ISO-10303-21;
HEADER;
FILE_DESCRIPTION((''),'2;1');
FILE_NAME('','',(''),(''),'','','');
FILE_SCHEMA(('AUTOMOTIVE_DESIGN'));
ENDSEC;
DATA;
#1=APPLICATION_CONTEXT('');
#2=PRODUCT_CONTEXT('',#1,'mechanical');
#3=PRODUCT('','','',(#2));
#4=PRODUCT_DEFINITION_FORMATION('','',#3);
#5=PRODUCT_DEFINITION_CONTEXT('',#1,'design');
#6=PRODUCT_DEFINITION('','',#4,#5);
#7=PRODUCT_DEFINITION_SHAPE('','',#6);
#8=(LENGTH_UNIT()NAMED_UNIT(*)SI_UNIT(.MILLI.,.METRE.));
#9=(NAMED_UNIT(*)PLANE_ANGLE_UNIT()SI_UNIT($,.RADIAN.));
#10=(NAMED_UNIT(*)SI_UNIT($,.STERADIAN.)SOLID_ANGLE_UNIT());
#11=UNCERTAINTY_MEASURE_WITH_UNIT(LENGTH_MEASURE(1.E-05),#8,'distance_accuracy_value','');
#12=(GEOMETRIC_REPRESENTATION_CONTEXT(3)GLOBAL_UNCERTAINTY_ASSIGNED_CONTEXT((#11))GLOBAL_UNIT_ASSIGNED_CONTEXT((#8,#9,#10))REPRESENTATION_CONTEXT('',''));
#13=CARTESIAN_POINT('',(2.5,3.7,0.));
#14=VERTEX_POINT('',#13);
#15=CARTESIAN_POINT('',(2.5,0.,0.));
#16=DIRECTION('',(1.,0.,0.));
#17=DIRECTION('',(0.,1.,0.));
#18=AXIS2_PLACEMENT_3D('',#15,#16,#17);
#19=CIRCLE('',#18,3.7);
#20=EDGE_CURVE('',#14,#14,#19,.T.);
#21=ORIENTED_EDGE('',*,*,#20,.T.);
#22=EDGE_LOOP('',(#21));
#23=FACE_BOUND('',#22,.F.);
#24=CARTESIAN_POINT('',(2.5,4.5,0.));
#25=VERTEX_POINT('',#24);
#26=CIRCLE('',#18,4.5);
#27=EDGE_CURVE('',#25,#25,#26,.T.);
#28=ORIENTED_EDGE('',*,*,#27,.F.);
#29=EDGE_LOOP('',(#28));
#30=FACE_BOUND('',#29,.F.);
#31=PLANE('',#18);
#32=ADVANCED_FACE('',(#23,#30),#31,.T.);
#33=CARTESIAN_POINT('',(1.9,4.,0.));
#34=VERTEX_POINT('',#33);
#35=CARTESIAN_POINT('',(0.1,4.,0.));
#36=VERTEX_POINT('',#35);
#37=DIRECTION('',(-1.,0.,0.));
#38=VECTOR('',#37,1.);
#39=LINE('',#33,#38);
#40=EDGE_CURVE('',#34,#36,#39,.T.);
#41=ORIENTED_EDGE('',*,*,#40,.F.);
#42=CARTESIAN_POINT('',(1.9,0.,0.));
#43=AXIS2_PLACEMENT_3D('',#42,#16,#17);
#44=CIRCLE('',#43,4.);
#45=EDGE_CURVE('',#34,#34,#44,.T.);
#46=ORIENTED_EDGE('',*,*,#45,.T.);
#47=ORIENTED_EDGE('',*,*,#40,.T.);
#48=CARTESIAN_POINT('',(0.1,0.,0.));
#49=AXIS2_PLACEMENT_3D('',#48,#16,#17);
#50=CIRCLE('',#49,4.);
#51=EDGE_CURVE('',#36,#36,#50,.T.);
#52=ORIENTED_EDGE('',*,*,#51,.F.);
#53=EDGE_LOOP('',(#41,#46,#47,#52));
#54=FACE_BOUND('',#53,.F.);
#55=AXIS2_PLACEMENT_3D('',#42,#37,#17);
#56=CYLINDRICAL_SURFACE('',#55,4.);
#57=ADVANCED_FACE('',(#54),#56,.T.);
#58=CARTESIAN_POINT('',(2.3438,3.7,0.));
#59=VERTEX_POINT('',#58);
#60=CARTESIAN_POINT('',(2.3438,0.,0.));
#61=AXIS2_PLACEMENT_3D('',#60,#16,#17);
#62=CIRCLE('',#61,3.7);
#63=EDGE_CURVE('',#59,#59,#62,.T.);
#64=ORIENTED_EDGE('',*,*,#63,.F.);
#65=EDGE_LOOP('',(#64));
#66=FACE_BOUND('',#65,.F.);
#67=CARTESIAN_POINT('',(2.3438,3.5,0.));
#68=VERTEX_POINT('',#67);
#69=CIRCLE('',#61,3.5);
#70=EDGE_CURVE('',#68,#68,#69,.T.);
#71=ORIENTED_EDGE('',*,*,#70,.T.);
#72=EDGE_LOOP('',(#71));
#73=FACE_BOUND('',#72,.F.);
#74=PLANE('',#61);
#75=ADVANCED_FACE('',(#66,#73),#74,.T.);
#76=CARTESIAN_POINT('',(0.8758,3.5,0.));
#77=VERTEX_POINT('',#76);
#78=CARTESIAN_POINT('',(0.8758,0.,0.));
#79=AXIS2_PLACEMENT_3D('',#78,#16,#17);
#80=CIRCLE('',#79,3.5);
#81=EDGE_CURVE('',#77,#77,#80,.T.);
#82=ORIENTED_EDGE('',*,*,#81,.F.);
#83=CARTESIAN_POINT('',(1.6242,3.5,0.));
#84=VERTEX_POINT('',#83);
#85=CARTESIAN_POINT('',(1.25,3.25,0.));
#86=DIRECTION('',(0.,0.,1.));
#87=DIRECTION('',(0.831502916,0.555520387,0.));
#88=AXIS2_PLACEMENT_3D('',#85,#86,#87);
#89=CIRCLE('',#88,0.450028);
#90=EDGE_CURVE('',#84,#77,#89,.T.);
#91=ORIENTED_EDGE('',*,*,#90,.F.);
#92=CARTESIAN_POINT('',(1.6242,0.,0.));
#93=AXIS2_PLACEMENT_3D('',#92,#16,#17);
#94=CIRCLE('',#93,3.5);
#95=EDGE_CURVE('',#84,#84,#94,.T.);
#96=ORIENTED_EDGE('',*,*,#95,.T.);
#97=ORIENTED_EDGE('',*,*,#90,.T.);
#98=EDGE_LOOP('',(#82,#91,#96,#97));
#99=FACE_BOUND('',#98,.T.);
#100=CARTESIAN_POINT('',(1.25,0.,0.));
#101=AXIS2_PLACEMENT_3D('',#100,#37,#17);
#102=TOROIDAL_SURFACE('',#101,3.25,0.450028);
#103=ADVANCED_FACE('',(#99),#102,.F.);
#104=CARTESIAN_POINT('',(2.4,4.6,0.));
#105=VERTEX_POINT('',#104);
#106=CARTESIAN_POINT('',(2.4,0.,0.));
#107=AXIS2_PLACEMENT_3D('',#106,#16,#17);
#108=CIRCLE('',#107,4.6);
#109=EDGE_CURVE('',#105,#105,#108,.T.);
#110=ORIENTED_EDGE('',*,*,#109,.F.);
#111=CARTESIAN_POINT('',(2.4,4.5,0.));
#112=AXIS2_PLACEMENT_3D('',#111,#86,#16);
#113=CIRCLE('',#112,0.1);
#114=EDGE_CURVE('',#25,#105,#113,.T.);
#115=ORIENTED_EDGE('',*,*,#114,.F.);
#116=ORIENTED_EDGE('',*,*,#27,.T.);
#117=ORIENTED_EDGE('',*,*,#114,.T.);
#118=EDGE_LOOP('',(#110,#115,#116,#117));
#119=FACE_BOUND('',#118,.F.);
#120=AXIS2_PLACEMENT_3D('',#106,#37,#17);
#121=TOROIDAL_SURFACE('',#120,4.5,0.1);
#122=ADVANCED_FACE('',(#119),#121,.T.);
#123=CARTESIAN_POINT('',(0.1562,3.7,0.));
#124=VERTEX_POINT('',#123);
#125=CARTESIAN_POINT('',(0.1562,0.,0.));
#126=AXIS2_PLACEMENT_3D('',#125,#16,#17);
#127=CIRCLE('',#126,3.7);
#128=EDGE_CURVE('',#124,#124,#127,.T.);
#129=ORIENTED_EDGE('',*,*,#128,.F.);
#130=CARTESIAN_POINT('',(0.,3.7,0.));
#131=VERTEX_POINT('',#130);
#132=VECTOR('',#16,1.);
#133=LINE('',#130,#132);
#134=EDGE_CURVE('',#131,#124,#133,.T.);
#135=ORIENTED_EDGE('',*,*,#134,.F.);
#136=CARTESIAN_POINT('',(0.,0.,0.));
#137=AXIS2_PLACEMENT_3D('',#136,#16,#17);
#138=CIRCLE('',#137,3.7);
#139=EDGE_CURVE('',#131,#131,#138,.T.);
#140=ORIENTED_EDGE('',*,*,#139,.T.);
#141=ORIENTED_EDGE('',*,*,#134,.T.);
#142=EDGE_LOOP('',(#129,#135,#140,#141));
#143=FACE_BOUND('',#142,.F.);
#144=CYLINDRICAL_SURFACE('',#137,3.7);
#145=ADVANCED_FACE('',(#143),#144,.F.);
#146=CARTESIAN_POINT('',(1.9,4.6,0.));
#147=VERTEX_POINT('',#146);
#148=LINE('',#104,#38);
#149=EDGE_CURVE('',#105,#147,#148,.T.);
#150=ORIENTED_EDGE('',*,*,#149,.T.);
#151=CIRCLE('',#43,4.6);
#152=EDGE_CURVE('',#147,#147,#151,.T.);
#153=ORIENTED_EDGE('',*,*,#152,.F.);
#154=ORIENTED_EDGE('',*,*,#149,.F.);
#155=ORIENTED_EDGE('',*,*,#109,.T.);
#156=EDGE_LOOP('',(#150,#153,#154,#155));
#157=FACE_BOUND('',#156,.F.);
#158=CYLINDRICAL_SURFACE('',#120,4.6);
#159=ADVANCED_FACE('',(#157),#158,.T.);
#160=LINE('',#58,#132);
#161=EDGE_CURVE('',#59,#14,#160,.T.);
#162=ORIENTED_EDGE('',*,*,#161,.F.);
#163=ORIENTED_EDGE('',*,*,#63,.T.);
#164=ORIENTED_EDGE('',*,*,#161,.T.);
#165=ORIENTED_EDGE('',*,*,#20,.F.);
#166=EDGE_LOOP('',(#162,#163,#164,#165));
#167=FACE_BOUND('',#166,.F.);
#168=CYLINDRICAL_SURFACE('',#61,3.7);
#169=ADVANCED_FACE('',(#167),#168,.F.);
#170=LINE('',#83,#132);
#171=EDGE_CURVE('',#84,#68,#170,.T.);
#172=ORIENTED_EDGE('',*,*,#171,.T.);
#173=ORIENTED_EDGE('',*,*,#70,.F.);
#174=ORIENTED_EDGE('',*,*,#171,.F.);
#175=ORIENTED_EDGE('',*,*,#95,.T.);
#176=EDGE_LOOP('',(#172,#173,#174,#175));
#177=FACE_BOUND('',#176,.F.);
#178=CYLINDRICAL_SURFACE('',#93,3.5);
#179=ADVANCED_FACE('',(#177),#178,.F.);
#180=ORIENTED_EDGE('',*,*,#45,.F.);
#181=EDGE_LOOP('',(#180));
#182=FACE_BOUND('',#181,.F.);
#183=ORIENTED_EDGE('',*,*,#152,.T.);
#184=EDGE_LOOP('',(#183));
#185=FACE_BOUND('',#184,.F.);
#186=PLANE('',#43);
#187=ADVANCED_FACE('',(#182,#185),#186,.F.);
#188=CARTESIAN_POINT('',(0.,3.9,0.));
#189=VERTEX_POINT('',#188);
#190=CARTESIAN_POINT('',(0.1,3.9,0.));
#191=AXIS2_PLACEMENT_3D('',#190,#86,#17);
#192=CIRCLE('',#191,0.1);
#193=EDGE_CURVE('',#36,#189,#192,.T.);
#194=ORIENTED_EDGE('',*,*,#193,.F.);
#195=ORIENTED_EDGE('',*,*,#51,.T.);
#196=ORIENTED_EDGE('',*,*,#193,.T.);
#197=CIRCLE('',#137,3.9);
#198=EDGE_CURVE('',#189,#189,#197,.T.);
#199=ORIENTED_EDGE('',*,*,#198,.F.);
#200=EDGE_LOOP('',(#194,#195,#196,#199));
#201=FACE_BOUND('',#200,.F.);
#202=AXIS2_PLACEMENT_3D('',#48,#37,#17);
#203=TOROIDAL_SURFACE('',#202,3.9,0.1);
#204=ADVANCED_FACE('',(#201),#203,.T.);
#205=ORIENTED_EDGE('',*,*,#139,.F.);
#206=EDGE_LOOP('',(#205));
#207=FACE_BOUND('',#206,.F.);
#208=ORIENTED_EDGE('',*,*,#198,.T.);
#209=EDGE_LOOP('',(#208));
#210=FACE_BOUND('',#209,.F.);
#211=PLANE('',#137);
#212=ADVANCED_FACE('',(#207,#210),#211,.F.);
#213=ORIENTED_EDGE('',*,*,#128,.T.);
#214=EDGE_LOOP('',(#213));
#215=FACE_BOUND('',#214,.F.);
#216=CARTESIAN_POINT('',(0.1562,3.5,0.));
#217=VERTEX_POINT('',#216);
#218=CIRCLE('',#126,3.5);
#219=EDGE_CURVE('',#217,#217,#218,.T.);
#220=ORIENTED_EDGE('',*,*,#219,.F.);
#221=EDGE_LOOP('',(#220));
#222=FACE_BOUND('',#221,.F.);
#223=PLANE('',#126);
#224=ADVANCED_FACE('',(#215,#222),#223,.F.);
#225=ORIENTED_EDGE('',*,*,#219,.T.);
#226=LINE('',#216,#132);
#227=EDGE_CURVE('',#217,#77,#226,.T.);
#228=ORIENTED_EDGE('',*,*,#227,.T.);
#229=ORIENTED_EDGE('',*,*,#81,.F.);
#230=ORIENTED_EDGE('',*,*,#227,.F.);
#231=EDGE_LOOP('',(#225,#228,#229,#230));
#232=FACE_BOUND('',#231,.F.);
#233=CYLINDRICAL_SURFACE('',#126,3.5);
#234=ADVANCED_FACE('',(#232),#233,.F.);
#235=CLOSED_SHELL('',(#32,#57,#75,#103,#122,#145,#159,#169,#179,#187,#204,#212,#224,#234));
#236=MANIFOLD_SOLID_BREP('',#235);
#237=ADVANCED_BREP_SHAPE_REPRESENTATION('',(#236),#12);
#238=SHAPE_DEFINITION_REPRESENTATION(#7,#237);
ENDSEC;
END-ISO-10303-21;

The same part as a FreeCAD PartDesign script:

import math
import FreeCAD as App
import Part
import Sketcher
from FreeCAD import Vector

doc = App.newDocument("Part")
body = doc.addObject("PartDesign::Body", "Body")

sketch1 = body.newObject("Sketcher::SketchObject", "Sketch")
sketch1.AttachmentSupport = (doc.getObject("XY_Plane"), [""])
sketch1.MapMode = "FlatFace"
sketch1.addGeometry([
    Part.LineSegment(Vector(0, 3.9, 0), Vector(0, 3.7, 0)),
    Part.LineSegment(Vector(0, 3.7, 0), Vector(0.16, 3.7, 0)),
    Part.LineSegment(Vector(0.16, 3.7, 0), Vector(0.16, 3.5, 0)),
    Part.LineSegment(Vector(0.16, 3.5, 0), Vector(0.88, 3.5, 0)),
    Part.ArcOfCircle(Part.Circle(Vector(1.25, 3.25, 0), Vector(0, 0, 1), 0.45), math.radians(34), math.radians(146)),
    Part.LineSegment(Vector(1.62, 3.5, 0), Vector(2.34, 3.5, 0)),
    Part.LineSegment(Vector(2.34, 3.5, 0), Vector(2.34, 3.7, 0)),
    Part.LineSegment(Vector(2.34, 3.7, 0), Vector(2.5, 3.7, 0)),
    Part.LineSegment(Vector(2.5, 3.7, 0), Vector(2.5, 4.5, 0)),
    Part.ArcOfCircle(Part.Circle(Vector(2.4, 4.5, 0), Vector(0, 0, 1), 0.1), math.radians(0), math.radians(90)),
    Part.LineSegment(Vector(2.4, 4.6, 0), Vector(1.9, 4.6, 0)),
    Part.LineSegment(Vector(1.9, 4.6, 0), Vector(1.9, 4, 0)),
    Part.LineSegment(Vector(1.9, 4, 0), Vector(0.1, 4, 0)),
    Part.ArcOfCircle(Part.Circle(Vector(0.1, 3.9, 0), Vector(0, 0, 1), 0.1), math.radians(90), math.radians(180)),
], False)
sketch1.addConstraint([
    Sketcher.Constraint("Coincident", 0, 2, 1, 1),
    Sketcher.Constraint("Coincident", 1, 2, 2, 1),
    Sketcher.Constraint("Coincident", 2, 2, 3, 1),
    Sketcher.Constraint("Coincident", 3, 2, 4, 2),
    Sketcher.Constraint("Coincident", 4, 1, 5, 1),
    Sketcher.Constraint("Coincident", 5, 2, 6, 1),
    Sketcher.Constraint("Coincident", 6, 2, 7, 1),
    Sketcher.Constraint("Coincident", 7, 2, 8, 1),
    Sketcher.Constraint("Tangent", 8, 2, 9, 1),
    Sketcher.Constraint("Tangent", 9, 2, 10, 1),
    Sketcher.Constraint("Coincident", 10, 2, 11, 1),
    Sketcher.Constraint("Coincident", 11, 2, 12, 1),
    Sketcher.Constraint("Tangent", 12, 2, 13, 1),
    Sketcher.Constraint("Tangent", 13, 2, 0, 1),
    Sketcher.Constraint("Vertical", 0),
    Sketcher.Constraint("Horizontal", 1),
    Sketcher.Constraint("Vertical", 2),
    Sketcher.Constraint("Horizontal", 3),
    Sketcher.Constraint("Horizontal", 5),
    Sketcher.Constraint("Vertical", 6),
    Sketcher.Constraint("Horizontal", 7),
    Sketcher.Constraint("Vertical", 8),
    Sketcher.Constraint("Horizontal", 10),
    Sketcher.Constraint("Vertical", 11),
    Sketcher.Constraint("Horizontal", 12),
    Sketcher.Constraint("Equal", 9, 13),
    Sketcher.Constraint("PointOnObject", 0, 2, -2),
    Sketcher.Constraint("Horizontal", 3, 2, 4, 1),
    Sketcher.Constraint("Horizontal", 1, 2, 6, 2),
    Sketcher.Constraint("Equal", 3, 5),
    Sketcher.Constraint("Equal", 1, 7),
    Sketcher.Constraint("Equal", 0, 2),
    Sketcher.Constraint("Radius", 9, 0.1),
    Sketcher.Constraint("Radius", 4, 0.45),
    Sketcher.Constraint("DistanceX", 10, 2, 10, 1, 0.5),
    Sketcher.Constraint("DistanceX", 12, 2, 12, 1, 1.8),
    Sketcher.Constraint("DistanceY", 0, 2, 0, 1, 0.2),
    Sketcher.Constraint("DistanceY", 8, 1, 8, 2, 0.8),
    Sketcher.Constraint("DistanceY", -1, 1, 11, 2, 4.0),
    Sketcher.Constraint("DistanceY", -1, 1, 4, 3, 3.25),
    Sketcher.Constraint("DistanceX", 1, 1, 1, 2, 0.1562),
])
revolution = body.newObject("PartDesign::Revolution", "Revolution")
revolution.Profile = sketch1
revolution.ReferenceAxis = (sketch1, ["H_Axis"])
revolution.Angle = 360

doc.recompute()
